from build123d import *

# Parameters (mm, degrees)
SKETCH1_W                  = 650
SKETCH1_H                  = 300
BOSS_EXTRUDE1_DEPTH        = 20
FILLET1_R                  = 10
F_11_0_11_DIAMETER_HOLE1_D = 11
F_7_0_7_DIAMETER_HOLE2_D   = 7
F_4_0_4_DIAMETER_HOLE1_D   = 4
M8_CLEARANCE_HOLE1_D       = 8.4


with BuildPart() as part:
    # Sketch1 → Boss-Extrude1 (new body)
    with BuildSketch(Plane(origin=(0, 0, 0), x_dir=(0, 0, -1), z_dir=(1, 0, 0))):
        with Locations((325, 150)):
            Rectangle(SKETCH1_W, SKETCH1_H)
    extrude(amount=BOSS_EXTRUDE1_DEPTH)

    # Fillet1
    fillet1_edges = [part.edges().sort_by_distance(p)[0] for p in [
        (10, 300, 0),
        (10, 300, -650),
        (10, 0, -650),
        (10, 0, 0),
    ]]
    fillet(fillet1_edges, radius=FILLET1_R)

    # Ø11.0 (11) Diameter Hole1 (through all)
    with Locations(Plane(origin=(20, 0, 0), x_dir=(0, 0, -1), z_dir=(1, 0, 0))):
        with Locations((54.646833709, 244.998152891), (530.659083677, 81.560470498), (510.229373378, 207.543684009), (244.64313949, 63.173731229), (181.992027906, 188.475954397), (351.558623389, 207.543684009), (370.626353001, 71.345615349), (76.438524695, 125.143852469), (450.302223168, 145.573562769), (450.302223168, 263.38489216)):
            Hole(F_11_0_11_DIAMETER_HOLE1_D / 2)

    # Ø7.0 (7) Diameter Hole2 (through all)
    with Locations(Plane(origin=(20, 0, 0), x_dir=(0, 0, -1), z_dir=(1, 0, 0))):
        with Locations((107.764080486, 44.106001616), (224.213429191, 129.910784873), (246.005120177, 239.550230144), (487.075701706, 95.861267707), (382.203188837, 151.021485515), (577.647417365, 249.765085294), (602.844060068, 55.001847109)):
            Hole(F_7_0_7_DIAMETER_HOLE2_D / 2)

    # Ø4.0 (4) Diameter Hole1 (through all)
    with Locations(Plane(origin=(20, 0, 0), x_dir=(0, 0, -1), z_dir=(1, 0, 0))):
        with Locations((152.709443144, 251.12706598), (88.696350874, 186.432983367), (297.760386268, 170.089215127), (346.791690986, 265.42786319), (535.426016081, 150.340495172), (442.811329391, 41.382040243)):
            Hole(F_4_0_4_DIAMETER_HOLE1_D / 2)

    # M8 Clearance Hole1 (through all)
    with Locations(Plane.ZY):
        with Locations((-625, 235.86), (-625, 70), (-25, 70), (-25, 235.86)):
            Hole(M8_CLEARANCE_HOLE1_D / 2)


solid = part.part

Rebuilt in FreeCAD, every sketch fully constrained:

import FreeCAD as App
import Part
import Sketcher
Q = App.Units.Quantity


def edges_at(feature, points):
    """Names of the edges that pass closest to the given points."""
    edges = feature.Shape.Edges
    near = lambda p: min(range(len(edges)), key=lambda i: edges[i].distToShape(Part.Vertex(*p))[0])
    return sorted({f"Edge{near(p) + 1}" for p in points})

doc = App.newDocument("Part")
body = doc.addObject("PartDesign::Body", "Body")

# Sketch on YZ plane
sketch1 = body.newObject("Sketcher::SketchObject", "Sketch")
sketch1.AttachmentSupport = (doc.getObject("YZ_Plane"), [""])
sketch1.MapMode = "FlatFace"
sketch1.addGeometry([
    Part.LineSegment(App.Vector(300, 0, 0), App.Vector(0, 0, 0)),
    Part.LineSegment(App.Vector(0, 0, 0), App.Vector(0, -650, 0)),
    Part.LineSegment(App.Vector(0, -650, 0), App.Vector(300, -650, 0)),
    Part.LineSegment(App.Vector(300, -650, 0), App.Vector(300, 0, 0)),
], False)
sketch1.addConstraint([
    Sketcher.Constraint("Coincident", 0, 2, 1, 1),
    Sketcher.Constraint("Coincident", 1, 2, 2, 1),
    Sketcher.Constraint("Coincident", 2, 2, 3, 1),
    Sketcher.Constraint("Coincident", 3, 2, 0, 1),
    Sketcher.Constraint("Horizontal", 0),
    Sketcher.Constraint("Vertical", 1),
    Sketcher.Constraint("Horizontal", 2),
    Sketcher.Constraint("Vertical", 3),
    Sketcher.Constraint("Coincident", 0, 2, -1, 1),
    Sketcher.Constraint("DistanceX", 0, 2, 0, 1, Q("300 mm")),
    Sketcher.Constraint("DistanceY", 1, 2, 1, 1, Q("650 mm")),
])
pad1 = body.newObject("PartDesign::Pad", "Pad")
pad1.Profile = sketch1
pad1.Length = 20
doc.recompute()

fillet = body.newObject("PartDesign::Fillet", "Fillet")
fillet.Base = (pad1, edges_at(pad1, [
    (10, 300, 0),
    (10, 300, -650),
    (10, 0, -650),
    (10, 0, 0),
]))
fillet.Radius = 10

# Sketch on YZ plane
sketch2 = body.newObject("Sketcher::SketchObject", "Sketch001")
sketch2.AttachmentSupport = (doc.getObject("YZ_Plane"), [""])
sketch2.MapMode = "FlatFace"
sketch2.AttachmentOffset = App.Placement(App.Vector(0, 0, 20), App.Rotation())
sketch2.addGeometry([
    Part.Circle(App.Vector(244.998153, -54.646834, 0), App.Vector(0, 0, 1), 5.5),  # 0
    Part.Circle(App.Vector(81.56047, -530.659084, 0), App.Vector(0, 0, 1), 5.5),  # 1
    Part.Circle(App.Vector(207.543684, -510.229373, 0), App.Vector(0, 0, 1), 5.5),  # 2
    Part.Circle(App.Vector(63.173731, -244.643139, 0), App.Vector(0, 0, 1), 5.5),  # 3
    Part.Circle(App.Vector(188.475954, -181.992028, 0), App.Vector(0, 0, 1), 5.5),  # 4
    Part.Circle(App.Vector(207.543684, -351.558623, 0), App.Vector(0, 0, 1), 5.5),  # 5
    Part.Circle(App.Vector(71.345615, -370.626353, 0), App.Vector(0, 0, 1), 5.5),  # 6
    Part.Circle(App.Vector(125.143852, -76.438525, 0), App.Vector(0, 0, 1), 5.5),  # 7
    Part.Circle(App.Vector(145.573563, -450.302223, 0), App.Vector(0, 0, 1), 5.5),  # 8
    Part.Circle(App.Vector(263.384892, -450.302223, 0), App.Vector(0, 0, 1), 5.5),  # 9
], False)
sketch2.addConstraint([
    Sketcher.Constraint("Equal", 0, 1),
    Sketcher.Constraint("Equal", 1, 2),
    Sketcher.Constraint("Equal", 2, 3),
    Sketcher.Constraint("Equal", 3, 4),
    Sketcher.Constraint("Equal", 4, 5),
    Sketcher.Constraint("Equal", 5, 6),
    Sketcher.Constraint("Equal", 6, 7),
    Sketcher.Constraint("Equal", 7, 8),
    Sketcher.Constraint("Equal", 8, 9),
    Sketcher.Constraint("Horizontal", 8, 3, 9, 3),
    Sketcher.Constraint("Vertical", 2, 3, 5, 3),
    Sketcher.Constraint("Diameter", 0, Q("11 mm")),
    Sketcher.Constraint("DistanceX", 4, 3, 0, 3, Q("56.522198 mm")),
    Sketcher.Constraint("DistanceX", 7, 3, 0, 3, Q("119.8543 mm")),
    Sketcher.Constraint("DistanceY", 5, 3, 7, 3, Q("275.120099 mm")),
    Sketcher.Constraint("DistanceY", 8, 3, 5, 3, Q("98.7436 mm")),
    Sketcher.Constraint("DistanceX", -1, 1, 1, 3, Q("81.56047 mm")),
    Sketcher.Constraint("DistanceX", -1, 1, 3, 3, Q("63.173731 mm")),
    Sketcher.Constraint("DistanceY", 3, 3, -1, 1, Q("244.643139 mm")),
    Sketcher.Constraint("DistanceY", 1, 3, 0, 3, Q("476.01225 mm")),
    Sketcher.Constraint("DistanceY", 1, 3, 2, 3, Q("20.42971 mm")),
    Sketcher.Constraint("DistanceX", 2, 3, 0, 3, Q("37.454469 mm")),
    Sketcher.Constraint("DistanceX", 3, 3, 0, 3, Q("181.824422 mm")),
    Sketcher.Constraint("DistanceY", 3, 3, 4, 3, Q("62.651112 mm")),
    Sketcher.Constraint("DistanceY", 2, 3, 5, 3, Q("158.67075 mm")),
    Sketcher.Constraint("DistanceX", 6, 3, 5, 3, Q("136.198069 mm")),
    Sketcher.Constraint("DistanceY", 6, 3, 5, 3, Q("19.06773 mm")),
    Sketcher.Constraint("DistanceX", 8, 3, 2, 3, Q("61.970121 mm")),
    Sketcher.Constraint("DistanceX", 2, 3, 9, 3, Q("55.841208 mm")),
    Sketcher.Constraint("DistanceY", 0, 3, -1, 1, Q("54.646834 mm")),
])
doc.recompute()
hole = body.newObject("PartDesign::Hole", "Hole")
hole.Profile = sketch2
hole.ThreadType = "None"
hole.Diameter = 11
hole.DepthType = "ThroughAll"

# Sketch on YZ plane
sketch3 = body.newObject("Sketcher::SketchObject", "Sketch002")
sketch3.AttachmentSupport = (doc.getObject("YZ_Plane"), [""])
sketch3.MapMode = "FlatFace"
sketch3.AttachmentOffset = App.Placement(App.Vector(0, 0, 20), App.Rotation())
sketch3.addGeometry([
    Part.Circle(App.Vector(44.106002, -107.76408, 0), App.Vector(0, 0, 1), 3.5),  # 0
    Part.Circle(App.Vector(129.910785, -224.213429, 0), App.Vector(0, 0, 1), 3.5),  # 1
    Part.Circle(App.Vector(239.55023, -246.00512, 0), App.Vector(0, 0, 1), 3.5),  # 2
    Part.Circle(App.Vector(95.861268, -487.075702, 0), App.Vector(0, 0, 1), 3.5),  # 3
    Part.Circle(App.Vector(151.021486, -382.203189, 0), App.Vector(0, 0, 1), 3.5),  # 4
    Part.Circle(App.Vector(249.765085, -577.647417, 0), App.Vector(0, 0, 1), 3.5),  # 5
    Part.Circle(App.Vector(55.001847, -602.84406, 0), App.Vector(0, 0, 1), 3.5),  # 6
], False)
sketch3.addConstraint([
    Sketcher.Constraint("Equal", 0, 1),
    Sketcher.Constraint("Equal", 1, 2),
    Sketcher.Constraint("Equal", 2, 3),
    Sketcher.Constraint("Equal", 3, 4),
    Sketcher.Constraint("Equal", 4, 5),
    Sketcher.Constraint("Equal", 5, 6),
    Sketcher.Constraint("Diameter", 0, Q("7 mm")),
    Sketcher.Constraint("DistanceX", -1, 1, 0, 3, Q("44.106002 mm")),
    Sketcher.Constraint("DistanceY", 3, 3, -1, 1, Q("487.075702 mm")),
    Sketcher.Constraint("DistanceX", 1, 3, 4, 3, Q("21.110701 mm")),
    Sketcher.Constraint("DistanceX", 4, 3, 5, 3, Q("98.7436 mm")),
    Sketcher.Constraint("DistanceY", 0, 3, -1, 1, Q("107.76408 mm")),
    Sketcher.Constraint("DistanceY", 1, 3, -1, 1, Q("224.213429 mm")),
    Sketcher.Constraint("DistanceX", -1, 1, 2, 3, Q("239.55023 mm")),
    Sketcher.Constraint("DistanceY", 2, 3, -1, 1, Q("246.00512 mm")),
    Sketcher.Constraint("DistanceY", 4, 3, -1, 1, Q("382.203189 mm")),
    Sketcher.Constraint("DistanceY", 6, 3, -1, 1, Q("602.84406 mm")),
    Sketcher.Constraint("DistanceY", 5, 3, 4, 3, Q("195.444229 mm")),
    Sketcher.Constraint("DistanceX", 6, 3, 3, 3, Q("40.859421 mm")),
    Sketcher.Constraint("DistanceX", 6, 3, 5, 3, Q("194.763238 mm")),
    Sketcher.Constraint("DistanceX", -1, 1, 1, 3, Q("129.910785 mm")),
])
doc.recompute()
hole2 = body.newObject("PartDesign::Hole", "Hole001")
hole2.Profile = sketch3
hole2.ThreadType = "None"
hole2.Diameter = 7
hole2.DepthType = "ThroughAll"

# Sketch on YZ plane
sketch4 = body.newObject("Sketcher::SketchObject", "Sketch003")
sketch4.AttachmentSupport = (doc.getObject("YZ_Plane"), [""])
sketch4.MapMode = "FlatFace"
sketch4.AttachmentOffset = App.Placement(App.Vector(0, 0, 20), App.Rotation())
sketch4.addGeometry([
    Part.Circle(App.Vector(251.127066, -152.709443, 0), App.Vector(0, 0, 1), 2),  # 0
    Part.Circle(App.Vector(186.432983, -88.696351, 0), App.Vector(0, 0, 1), 2),  # 1
    Part.Circle(App.Vector(170.089215, -297.760386, 0), App.Vector(0, 0, 1), 2),  # 2
    Part.Circle(App.Vector(265.427863, -346.791691, 0), App.Vector(0, 0, 1), 2),  # 3
    Part.Circle(App.Vector(150.340495, -535.426016, 0), App.Vector(0, 0, 1), 2),  # 4
    Part.Circle(App.Vector(41.38204, -442.811329, 0), App.Vector(0, 0, 1), 2),  # 5
], False)
sketch4.addConstraint([
    Sketcher.Constraint("Equal", 0, 1),
    Sketcher.Constraint("Equal", 1, 2),
    Sketcher.Constraint("Equal", 2, 3),
    Sketcher.Constraint("Equal", 3, 4),
    Sketcher.Constraint("Equal", 4, 5),
    Sketcher.Constraint("Diameter", 0, Q("4 mm")),
    Sketcher.Constraint("DistanceY", 1, 3, -1, 1, Q("88.696351 mm")),
    Sketcher.Constraint("DistanceY", 3, 3, -1, 1, Q("346.791691 mm")),
    Sketcher.Constraint("DistanceX", -1, 1, 5, 3, Q("41.38204 mm")),
    Sketcher.Constraint("DistanceY", 5, 3, -1, 1, Q("442.811329 mm")),
    Sketcher.Constraint("DistanceX", 2, 3, 0, 3, Q("81.037851 mm")),
    Sketcher.Constraint("DistanceX", 2, 3, 1, 3, Q("16.343768 mm")),
    Sketcher.Constraint("DistanceX", 2, 3, 3, 3, Q("95.338648 mm")),
    Sketcher.Constraint("DistanceX", 4, 3, 3, 3, Q("115.087368 mm")),
    Sketcher.Constraint("DistanceY", 4, 3, 2, 3, Q("237.66563 mm")),
    Sketcher.Constraint("DistanceX", -1, 1, 0, 3, Q("251.127066 mm")),
    Sketcher.Constraint("DistanceY", 0, 3, -1, 1, Q("152.709443 mm")),
    Sketcher.Constraint("DistanceY", 2, 3, -1, 1, Q("297.760386 mm")),
])
doc.recompute()
hole3 = body.newObject("PartDesign::Hole", "Hole002")
hole3.Profile = sketch4
hole3.ThreadType = "None"
hole3.Diameter = 4
hole3.DepthType = "ThroughAll"

# Sketch on YZ plane
sketch5 = body.newObject("Sketcher::SketchObject", "Sketch004")
sketch5.AttachmentSupport = (doc.getObject("YZ_Plane"), [""])
sketch5.MapMode = "FlatFace"
sketch5.addGeometry([
    Part.Circle(App.Vector(235.86, -625, 0), App.Vector(0, 0, 1), 4.2),
    Part.Circle(App.Vector(70, -625, 0), App.Vector(0, 0, 1), 4.2),
    Part.Circle(App.Vector(70, -25, 0), App.Vector(0, 0, 1), 4.2),
    Part.Circle(App.Vector(235.86, -25, 0), App.Vector(0, 0, 1), 4.2),
], False)
sketch5.addConstraint([
    Sketcher.Constraint("Equal", 0, 1),
    Sketcher.Constraint("Equal", 1, 2),
    Sketcher.Constraint("Equal", 2, 3),
    Sketcher.Constraint("Horizontal", 0, 3, 1, 3),
    Sketcher.Constraint("Horizontal", 2, 3, 3, 3),
    Sketcher.Constraint("Vertical", 1, 3, 2, 3),
    Sketcher.Constraint("Vertical", 0, 3, 3, 3),
    Sketcher.Constraint("Diameter", 0, Q("8.4 mm")),
    Sketcher.Constraint("DistanceY", 0, 3, -1, 1, Q("625 mm")),
    Sketcher.Constraint("DistanceX", -1, 1, 1, 3, Q("70 mm")),
    Sketcher.Constraint("DistanceY", 2, 3, -1, 1, Q("25 mm")),
    Sketcher.Constraint("DistanceX", -1, 1, 0, 3, Q("235.86 mm")),
])
doc.recompute()
hole4 = body.newObject("PartDesign::Hole", "Hole003")
hole4.Profile = sketch5
hole4.ThreadType = "None"
hole4.Diameter = 8.4
hole4.DepthType = "ThroughAll"
hole4.Reversed = True

doc.recompute()
